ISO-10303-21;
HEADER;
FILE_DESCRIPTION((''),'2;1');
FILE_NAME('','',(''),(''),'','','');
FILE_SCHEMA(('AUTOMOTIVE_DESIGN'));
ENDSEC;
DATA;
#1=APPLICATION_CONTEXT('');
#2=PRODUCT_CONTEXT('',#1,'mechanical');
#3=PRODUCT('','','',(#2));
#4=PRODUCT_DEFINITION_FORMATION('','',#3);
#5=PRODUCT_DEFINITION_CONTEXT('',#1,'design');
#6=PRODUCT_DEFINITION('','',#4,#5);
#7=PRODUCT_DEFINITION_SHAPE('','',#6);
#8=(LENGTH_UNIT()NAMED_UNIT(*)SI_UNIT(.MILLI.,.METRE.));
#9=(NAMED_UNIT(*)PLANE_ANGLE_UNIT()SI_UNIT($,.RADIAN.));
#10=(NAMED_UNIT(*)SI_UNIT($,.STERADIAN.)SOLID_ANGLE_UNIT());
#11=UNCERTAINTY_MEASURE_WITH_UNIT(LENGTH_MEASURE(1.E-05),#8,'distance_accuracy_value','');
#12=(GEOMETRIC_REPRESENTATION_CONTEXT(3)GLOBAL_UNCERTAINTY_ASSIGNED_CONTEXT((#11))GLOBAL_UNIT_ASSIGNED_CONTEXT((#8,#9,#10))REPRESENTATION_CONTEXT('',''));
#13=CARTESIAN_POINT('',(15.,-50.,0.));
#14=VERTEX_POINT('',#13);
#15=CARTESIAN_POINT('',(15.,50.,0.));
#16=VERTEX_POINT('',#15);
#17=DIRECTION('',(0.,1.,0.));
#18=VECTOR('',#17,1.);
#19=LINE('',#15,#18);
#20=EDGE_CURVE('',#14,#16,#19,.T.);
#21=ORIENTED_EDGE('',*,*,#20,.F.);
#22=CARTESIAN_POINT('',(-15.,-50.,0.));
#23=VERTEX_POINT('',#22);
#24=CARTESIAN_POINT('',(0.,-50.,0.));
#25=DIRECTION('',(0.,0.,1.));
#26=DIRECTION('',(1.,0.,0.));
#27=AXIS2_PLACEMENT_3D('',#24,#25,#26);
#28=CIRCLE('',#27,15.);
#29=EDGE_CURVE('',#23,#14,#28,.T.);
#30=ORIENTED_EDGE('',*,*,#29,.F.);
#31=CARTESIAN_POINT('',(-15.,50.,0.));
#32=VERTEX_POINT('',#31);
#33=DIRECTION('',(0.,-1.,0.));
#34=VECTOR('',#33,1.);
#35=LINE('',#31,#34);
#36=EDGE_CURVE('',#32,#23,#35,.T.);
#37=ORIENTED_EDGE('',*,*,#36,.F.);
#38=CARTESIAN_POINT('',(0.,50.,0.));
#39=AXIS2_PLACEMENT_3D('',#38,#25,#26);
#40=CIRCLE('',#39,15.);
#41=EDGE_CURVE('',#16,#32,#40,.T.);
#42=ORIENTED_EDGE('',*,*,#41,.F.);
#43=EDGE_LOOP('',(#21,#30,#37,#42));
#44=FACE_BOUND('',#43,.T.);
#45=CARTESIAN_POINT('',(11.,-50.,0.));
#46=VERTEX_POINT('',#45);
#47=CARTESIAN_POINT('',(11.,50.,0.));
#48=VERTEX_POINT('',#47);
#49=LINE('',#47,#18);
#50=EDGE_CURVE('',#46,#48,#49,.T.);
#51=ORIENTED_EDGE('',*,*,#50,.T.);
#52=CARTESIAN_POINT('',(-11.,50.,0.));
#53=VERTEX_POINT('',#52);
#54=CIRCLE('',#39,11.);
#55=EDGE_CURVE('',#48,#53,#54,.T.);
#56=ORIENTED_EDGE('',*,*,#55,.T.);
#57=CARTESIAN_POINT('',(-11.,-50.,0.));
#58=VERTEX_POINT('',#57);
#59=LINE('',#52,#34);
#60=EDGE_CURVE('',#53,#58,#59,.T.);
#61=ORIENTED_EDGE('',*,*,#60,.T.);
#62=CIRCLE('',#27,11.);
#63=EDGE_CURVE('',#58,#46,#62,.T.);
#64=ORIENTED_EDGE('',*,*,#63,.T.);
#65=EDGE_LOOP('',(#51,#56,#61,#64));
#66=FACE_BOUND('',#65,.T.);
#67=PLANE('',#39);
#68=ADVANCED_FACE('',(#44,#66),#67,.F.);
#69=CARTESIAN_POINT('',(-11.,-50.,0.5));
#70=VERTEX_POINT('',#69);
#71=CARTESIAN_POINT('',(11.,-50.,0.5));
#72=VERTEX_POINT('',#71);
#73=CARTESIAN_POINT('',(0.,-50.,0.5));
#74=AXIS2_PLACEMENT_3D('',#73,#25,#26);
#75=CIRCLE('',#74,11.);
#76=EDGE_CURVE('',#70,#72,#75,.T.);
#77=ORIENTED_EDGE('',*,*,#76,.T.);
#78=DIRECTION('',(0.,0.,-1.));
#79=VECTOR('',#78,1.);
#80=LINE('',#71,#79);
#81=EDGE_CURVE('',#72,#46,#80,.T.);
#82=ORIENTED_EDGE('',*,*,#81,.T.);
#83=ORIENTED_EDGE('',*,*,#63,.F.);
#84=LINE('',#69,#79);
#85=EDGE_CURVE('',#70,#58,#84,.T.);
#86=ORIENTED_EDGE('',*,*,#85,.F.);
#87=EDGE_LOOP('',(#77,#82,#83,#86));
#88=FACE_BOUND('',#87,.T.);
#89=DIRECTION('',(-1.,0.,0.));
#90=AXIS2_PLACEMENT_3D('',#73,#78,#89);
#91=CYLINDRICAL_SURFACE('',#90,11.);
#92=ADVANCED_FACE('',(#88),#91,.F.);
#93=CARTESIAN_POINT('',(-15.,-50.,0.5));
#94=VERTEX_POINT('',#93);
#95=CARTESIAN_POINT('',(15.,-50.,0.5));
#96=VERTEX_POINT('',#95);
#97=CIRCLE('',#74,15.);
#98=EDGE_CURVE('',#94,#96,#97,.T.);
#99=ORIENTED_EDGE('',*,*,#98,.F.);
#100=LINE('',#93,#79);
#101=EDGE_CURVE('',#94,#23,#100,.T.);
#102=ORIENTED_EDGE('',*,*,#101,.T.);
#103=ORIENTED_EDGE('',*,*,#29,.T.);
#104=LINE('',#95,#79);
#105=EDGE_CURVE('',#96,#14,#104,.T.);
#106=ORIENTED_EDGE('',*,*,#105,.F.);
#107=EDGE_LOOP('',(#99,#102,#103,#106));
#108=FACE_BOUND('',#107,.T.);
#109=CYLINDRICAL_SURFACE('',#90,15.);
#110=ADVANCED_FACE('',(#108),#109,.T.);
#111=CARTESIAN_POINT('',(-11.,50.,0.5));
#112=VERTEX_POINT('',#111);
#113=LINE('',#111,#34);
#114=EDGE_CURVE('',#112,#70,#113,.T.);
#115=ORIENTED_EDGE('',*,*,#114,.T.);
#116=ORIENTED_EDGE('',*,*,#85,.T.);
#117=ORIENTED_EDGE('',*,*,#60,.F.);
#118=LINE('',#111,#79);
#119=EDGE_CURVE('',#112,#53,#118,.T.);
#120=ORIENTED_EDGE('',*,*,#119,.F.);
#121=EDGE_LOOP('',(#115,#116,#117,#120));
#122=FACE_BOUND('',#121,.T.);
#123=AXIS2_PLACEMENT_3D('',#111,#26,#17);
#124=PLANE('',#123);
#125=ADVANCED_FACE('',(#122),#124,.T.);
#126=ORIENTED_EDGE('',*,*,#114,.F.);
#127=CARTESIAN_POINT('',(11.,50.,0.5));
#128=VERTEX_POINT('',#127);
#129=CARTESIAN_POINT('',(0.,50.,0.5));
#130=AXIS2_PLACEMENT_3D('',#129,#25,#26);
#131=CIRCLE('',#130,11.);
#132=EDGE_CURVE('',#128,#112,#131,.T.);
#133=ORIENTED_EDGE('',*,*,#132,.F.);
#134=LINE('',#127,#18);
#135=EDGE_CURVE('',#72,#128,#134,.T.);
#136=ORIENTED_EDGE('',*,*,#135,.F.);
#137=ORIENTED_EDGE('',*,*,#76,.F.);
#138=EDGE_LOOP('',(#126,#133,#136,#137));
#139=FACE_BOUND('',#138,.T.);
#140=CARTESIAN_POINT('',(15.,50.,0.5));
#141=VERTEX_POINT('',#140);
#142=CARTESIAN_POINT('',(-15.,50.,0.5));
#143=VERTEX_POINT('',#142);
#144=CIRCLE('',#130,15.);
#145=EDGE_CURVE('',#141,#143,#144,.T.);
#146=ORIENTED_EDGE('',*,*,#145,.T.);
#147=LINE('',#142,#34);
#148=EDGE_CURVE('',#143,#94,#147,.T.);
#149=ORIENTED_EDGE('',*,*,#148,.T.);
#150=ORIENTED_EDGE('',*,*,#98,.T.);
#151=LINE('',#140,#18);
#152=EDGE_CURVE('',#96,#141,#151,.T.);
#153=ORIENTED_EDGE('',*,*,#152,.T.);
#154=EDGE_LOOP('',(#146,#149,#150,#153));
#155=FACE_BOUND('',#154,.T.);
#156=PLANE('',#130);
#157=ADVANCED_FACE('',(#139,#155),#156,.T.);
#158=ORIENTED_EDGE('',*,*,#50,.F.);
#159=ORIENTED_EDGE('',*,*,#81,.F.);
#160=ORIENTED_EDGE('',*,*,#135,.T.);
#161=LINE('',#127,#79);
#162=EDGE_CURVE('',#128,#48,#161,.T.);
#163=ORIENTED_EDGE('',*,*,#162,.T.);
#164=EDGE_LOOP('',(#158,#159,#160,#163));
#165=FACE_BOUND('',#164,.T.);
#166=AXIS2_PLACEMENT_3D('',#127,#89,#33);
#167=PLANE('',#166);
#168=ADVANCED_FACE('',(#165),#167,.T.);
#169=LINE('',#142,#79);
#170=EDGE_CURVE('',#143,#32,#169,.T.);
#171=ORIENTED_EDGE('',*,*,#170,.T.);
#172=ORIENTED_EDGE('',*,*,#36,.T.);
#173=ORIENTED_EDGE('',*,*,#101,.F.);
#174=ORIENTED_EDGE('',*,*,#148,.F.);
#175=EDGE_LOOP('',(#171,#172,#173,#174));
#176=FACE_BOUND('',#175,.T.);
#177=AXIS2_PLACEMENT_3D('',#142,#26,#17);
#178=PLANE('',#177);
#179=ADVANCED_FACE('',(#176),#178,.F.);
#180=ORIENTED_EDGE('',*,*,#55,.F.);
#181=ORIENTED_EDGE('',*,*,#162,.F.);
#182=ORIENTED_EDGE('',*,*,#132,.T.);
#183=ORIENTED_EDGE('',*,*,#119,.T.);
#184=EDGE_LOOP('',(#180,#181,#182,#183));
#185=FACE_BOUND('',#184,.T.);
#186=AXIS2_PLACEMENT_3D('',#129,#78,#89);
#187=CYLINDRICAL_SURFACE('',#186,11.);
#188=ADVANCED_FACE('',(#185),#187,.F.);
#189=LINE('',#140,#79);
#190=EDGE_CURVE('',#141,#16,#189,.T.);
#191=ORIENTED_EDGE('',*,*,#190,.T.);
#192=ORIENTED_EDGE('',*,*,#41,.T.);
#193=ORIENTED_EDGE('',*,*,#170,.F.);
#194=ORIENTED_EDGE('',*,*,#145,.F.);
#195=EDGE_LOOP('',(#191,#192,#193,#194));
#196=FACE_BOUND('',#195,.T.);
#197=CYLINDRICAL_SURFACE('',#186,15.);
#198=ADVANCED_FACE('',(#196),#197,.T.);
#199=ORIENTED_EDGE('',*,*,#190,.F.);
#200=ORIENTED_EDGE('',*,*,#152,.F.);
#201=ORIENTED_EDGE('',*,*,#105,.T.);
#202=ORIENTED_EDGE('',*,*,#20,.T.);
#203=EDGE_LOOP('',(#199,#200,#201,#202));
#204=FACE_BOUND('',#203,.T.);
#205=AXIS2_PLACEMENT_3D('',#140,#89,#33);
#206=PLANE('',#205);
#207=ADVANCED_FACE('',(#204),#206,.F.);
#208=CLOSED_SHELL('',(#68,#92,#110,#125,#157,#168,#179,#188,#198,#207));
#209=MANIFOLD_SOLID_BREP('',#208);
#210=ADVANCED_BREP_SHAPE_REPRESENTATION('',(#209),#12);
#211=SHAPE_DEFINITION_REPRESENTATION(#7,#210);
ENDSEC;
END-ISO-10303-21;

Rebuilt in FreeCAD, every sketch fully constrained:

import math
import FreeCAD as App
import Part
import Sketcher
Q = App.Units.Quantity

doc = App.newDocument("Part")
body = doc.addObject("PartDesign::Body", "Body")

# Sketch on XY plane
sketch1 = body.newObject("Sketcher::SketchObject", "Sketch")
sketch1.AttachmentSupport = (doc.getObject("XY_Plane"), [""])
sketch1.MapMode = "FlatFace"
sketch1.addGeometry(Part.LineSegment(App.Vector(15, -50, 0), App.Vector(15, 50, 0)), False)
sketch1.addGeometry(Part.ArcOfCircle(Part.Circle(App.Vector(0, 50, 0), App.Vector(0, 0, 1), 15), math.radians(0), math.radians(180)), False)
sketch1.addGeometry(Part.LineSegment(App.Vector(-15, 50, 0), App.Vector(-15, -50, 0)), False)
sketch1.addGeometry(Part.ArcOfCircle(Part.Circle(App.Vector(0, -50, 0), App.Vector(0, 0, 1), 15), math.radians(180), math.radians(360)), False)
sketch1.addGeometry(Part.LineSegment(App.Vector(11, 50, 0), App.Vector(11, -50, 0)), False)
sketch1.addGeometry(Part.ArcOfCircle(Part.Circle(App.Vector(0, -50, 0), App.Vector(0, 0, 1), 11), math.radians(180), math.radians(360)), False)
sketch1.addGeometry(Part.LineSegment(App.Vector(-11, -50, 0), App.Vector(-11, 50, 0)), False)
sketch1.addGeometry(Part.ArcOfCircle(Part.Circle(App.Vector(0, 50, 0), App.Vector(0, 0, 1), 11), math.radians(0), math.radians(180)), False)
sketch1.addConstraint(Sketcher.Constraint("Tangent", 0, 2, 1, 1))
sketch1.addConstraint(Sketcher.Constraint("Tangent", 1, 2, 2, 1))
sketch1.addConstraint(Sketcher.Constraint("Tangent", 2, 2, 3, 1))
sketch1.addConstraint(Sketcher.Constraint("Tangent", 3, 2, 0, 1))
sketch1.addConstraint(Sketcher.Constraint("Tangent", 4, 2, 5, 2))
sketch1.addConstraint(Sketcher.Constraint("Tangent", 5, 1, 6, 1))
sketch1.addConstraint(Sketcher.Constraint("Tangent", 6, 2, 7, 2))
sketch1.addConstraint(Sketcher.Constraint("Tangent", 7, 1, 4, 1))
sketch1.addConstraint(Sketcher.Constraint("Vertical", 0))
sketch1.addConstraint(Sketcher.Constraint("Vertical", 2))
sketch1.addConstraint(Sketcher.Constraint("Vertical", 4))
sketch1.addConstraint(Sketcher.Constraint("Vertical", 6))
sketch1.addConstraint(Sketcher.Constraint("Coincident", 5, 3, 3, 3))
sketch1.addConstraint(Sketcher.Constraint("Symmetric", 1, 3, 3, 3, -1, 1))
sketch1.addConstraint(Sketcher.Constraint("Horizontal", 7, 3, 0, 2))
sketch1.addConstraint(Sketcher.Constraint("Radius", 1, Q("15 mm")))
sketch1.addConstraint(Sketcher.Constraint("Radius", 5, Q("11 mm")))
sketch1.addConstraint(Sketcher.Constraint("DistanceY", 0, 1, 0, 2, Q("100 mm")))
pad1 = body.newObject("PartDesign::Pad", "Pad")
pad1.Profile = sketch1
pad1.Length = 0.5

doc.recompute()
